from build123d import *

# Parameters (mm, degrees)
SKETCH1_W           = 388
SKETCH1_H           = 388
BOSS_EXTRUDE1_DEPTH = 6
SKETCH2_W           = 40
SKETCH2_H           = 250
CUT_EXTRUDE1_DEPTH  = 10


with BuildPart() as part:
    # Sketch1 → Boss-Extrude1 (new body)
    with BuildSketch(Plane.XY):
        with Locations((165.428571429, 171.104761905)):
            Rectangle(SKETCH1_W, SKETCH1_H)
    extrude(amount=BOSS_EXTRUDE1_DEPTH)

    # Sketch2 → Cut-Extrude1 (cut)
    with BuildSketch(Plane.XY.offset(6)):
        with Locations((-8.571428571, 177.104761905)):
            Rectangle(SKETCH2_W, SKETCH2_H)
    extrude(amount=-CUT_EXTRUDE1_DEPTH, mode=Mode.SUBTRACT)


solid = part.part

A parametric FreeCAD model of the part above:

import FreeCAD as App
import Part
import Sketcher

V = App.Vector


def add_polygon(sketch, points):
    """Adds a closed chain of lines whose ends are joined by coincident constraints."""
    first, n = sketch.GeometryCount, len(points)
    for a, b in zip(points, points[1:] + points[:1]):
        sketch.addGeometry(Part.LineSegment(App.Vector(*a, 0), App.Vector(*b, 0)), False)
    for i in range(n):
        sketch.addConstraint(Sketcher.Constraint("Coincident", first + i, 2, first + (i + 1) % n, 1))

doc = App.newDocument("Part")
body = doc.addObject("PartDesign::Body", "Body")

sketch1 = body.newObject("Sketcher::SketchObject", "Sketch")
sketch1.AttachmentSupport = (doc.getObject("XY_Plane"), [""])
sketch1.MapMode = "FlatFace"
add_polygon(sketch1, [(-28.571429, 365.104762), (-28.571429, -22.895238), (359.428571, -22.895238), (359.428571, 365.104762)])
sketch1.addConstraint(Sketcher.Constraint("Vertical", 0))
sketch1.addConstraint(Sketcher.Constraint("Horizontal", 1))
sketch1.addConstraint(Sketcher.Constraint("Vertical", 2))
sketch1.addConstraint(Sketcher.Constraint("Horizontal", 3))
sketch1.addConstraint(Sketcher.Constraint("Equal", 3, 0))
sketch1.addConstraint(Sketcher.Constraint("DistanceX", 1, 1, 1, 2, 388.0))
sketch1.addConstraint(Sketcher.Constraint("DistanceX", 0, 2, -1, 1, 28.571429))
sketch1.addConstraint(Sketcher.Constraint("DistanceY", 0, 2, -1, 1, 22.895238))
pad1 = body.newObject("PartDesign::Pad", "Pad")
pad1.Profile = sketch1
pad1.Length = 6

sketch2 = body.newObject("Sketcher::SketchObject", "Sketch001")
sketch2.AttachmentSupport = (doc.getObject("XY_Plane"), [""])
sketch2.MapMode = "FlatFace"
sketch2.AttachmentOffset = App.Placement(V(0, 0, 6), App.Rotation())
add_polygon(sketch2, [(-28.571429, 302.104762), (-28.571429, 52.104762), (11.428571, 52.104762), (11.428571, 302.104762)])
sketch2.addConstraint(Sketcher.Constraint("Vertical", 0))
sketch2.addConstraint(Sketcher.Constraint("Horizontal", 1))
sketch2.addConstraint(Sketcher.Constraint("Vertical", 2))
sketch2.addConstraint(Sketcher.Constraint("Horizontal", 3))
sketch2.addConstraint(Sketcher.Constraint("DistanceX", 1, 1, 1, 2, 40.0))
sketch2.addConstraint(Sketcher.Constraint("DistanceY", 0, 2, 0, 1, 250.0))
sketch2.addConstraint(Sketcher.Constraint("DistanceX", 0, 2, -1, 1, 28.571429))
sketch2.addConstraint(Sketcher.Constraint("DistanceY", -1, 1, 0, 2, 52.104762))
pocket1 = body.newObject("PartDesign::Pocket", "Pocket")
pocket1.Profile = sketch2
pocket1.Length = 10

doc.recompute()
